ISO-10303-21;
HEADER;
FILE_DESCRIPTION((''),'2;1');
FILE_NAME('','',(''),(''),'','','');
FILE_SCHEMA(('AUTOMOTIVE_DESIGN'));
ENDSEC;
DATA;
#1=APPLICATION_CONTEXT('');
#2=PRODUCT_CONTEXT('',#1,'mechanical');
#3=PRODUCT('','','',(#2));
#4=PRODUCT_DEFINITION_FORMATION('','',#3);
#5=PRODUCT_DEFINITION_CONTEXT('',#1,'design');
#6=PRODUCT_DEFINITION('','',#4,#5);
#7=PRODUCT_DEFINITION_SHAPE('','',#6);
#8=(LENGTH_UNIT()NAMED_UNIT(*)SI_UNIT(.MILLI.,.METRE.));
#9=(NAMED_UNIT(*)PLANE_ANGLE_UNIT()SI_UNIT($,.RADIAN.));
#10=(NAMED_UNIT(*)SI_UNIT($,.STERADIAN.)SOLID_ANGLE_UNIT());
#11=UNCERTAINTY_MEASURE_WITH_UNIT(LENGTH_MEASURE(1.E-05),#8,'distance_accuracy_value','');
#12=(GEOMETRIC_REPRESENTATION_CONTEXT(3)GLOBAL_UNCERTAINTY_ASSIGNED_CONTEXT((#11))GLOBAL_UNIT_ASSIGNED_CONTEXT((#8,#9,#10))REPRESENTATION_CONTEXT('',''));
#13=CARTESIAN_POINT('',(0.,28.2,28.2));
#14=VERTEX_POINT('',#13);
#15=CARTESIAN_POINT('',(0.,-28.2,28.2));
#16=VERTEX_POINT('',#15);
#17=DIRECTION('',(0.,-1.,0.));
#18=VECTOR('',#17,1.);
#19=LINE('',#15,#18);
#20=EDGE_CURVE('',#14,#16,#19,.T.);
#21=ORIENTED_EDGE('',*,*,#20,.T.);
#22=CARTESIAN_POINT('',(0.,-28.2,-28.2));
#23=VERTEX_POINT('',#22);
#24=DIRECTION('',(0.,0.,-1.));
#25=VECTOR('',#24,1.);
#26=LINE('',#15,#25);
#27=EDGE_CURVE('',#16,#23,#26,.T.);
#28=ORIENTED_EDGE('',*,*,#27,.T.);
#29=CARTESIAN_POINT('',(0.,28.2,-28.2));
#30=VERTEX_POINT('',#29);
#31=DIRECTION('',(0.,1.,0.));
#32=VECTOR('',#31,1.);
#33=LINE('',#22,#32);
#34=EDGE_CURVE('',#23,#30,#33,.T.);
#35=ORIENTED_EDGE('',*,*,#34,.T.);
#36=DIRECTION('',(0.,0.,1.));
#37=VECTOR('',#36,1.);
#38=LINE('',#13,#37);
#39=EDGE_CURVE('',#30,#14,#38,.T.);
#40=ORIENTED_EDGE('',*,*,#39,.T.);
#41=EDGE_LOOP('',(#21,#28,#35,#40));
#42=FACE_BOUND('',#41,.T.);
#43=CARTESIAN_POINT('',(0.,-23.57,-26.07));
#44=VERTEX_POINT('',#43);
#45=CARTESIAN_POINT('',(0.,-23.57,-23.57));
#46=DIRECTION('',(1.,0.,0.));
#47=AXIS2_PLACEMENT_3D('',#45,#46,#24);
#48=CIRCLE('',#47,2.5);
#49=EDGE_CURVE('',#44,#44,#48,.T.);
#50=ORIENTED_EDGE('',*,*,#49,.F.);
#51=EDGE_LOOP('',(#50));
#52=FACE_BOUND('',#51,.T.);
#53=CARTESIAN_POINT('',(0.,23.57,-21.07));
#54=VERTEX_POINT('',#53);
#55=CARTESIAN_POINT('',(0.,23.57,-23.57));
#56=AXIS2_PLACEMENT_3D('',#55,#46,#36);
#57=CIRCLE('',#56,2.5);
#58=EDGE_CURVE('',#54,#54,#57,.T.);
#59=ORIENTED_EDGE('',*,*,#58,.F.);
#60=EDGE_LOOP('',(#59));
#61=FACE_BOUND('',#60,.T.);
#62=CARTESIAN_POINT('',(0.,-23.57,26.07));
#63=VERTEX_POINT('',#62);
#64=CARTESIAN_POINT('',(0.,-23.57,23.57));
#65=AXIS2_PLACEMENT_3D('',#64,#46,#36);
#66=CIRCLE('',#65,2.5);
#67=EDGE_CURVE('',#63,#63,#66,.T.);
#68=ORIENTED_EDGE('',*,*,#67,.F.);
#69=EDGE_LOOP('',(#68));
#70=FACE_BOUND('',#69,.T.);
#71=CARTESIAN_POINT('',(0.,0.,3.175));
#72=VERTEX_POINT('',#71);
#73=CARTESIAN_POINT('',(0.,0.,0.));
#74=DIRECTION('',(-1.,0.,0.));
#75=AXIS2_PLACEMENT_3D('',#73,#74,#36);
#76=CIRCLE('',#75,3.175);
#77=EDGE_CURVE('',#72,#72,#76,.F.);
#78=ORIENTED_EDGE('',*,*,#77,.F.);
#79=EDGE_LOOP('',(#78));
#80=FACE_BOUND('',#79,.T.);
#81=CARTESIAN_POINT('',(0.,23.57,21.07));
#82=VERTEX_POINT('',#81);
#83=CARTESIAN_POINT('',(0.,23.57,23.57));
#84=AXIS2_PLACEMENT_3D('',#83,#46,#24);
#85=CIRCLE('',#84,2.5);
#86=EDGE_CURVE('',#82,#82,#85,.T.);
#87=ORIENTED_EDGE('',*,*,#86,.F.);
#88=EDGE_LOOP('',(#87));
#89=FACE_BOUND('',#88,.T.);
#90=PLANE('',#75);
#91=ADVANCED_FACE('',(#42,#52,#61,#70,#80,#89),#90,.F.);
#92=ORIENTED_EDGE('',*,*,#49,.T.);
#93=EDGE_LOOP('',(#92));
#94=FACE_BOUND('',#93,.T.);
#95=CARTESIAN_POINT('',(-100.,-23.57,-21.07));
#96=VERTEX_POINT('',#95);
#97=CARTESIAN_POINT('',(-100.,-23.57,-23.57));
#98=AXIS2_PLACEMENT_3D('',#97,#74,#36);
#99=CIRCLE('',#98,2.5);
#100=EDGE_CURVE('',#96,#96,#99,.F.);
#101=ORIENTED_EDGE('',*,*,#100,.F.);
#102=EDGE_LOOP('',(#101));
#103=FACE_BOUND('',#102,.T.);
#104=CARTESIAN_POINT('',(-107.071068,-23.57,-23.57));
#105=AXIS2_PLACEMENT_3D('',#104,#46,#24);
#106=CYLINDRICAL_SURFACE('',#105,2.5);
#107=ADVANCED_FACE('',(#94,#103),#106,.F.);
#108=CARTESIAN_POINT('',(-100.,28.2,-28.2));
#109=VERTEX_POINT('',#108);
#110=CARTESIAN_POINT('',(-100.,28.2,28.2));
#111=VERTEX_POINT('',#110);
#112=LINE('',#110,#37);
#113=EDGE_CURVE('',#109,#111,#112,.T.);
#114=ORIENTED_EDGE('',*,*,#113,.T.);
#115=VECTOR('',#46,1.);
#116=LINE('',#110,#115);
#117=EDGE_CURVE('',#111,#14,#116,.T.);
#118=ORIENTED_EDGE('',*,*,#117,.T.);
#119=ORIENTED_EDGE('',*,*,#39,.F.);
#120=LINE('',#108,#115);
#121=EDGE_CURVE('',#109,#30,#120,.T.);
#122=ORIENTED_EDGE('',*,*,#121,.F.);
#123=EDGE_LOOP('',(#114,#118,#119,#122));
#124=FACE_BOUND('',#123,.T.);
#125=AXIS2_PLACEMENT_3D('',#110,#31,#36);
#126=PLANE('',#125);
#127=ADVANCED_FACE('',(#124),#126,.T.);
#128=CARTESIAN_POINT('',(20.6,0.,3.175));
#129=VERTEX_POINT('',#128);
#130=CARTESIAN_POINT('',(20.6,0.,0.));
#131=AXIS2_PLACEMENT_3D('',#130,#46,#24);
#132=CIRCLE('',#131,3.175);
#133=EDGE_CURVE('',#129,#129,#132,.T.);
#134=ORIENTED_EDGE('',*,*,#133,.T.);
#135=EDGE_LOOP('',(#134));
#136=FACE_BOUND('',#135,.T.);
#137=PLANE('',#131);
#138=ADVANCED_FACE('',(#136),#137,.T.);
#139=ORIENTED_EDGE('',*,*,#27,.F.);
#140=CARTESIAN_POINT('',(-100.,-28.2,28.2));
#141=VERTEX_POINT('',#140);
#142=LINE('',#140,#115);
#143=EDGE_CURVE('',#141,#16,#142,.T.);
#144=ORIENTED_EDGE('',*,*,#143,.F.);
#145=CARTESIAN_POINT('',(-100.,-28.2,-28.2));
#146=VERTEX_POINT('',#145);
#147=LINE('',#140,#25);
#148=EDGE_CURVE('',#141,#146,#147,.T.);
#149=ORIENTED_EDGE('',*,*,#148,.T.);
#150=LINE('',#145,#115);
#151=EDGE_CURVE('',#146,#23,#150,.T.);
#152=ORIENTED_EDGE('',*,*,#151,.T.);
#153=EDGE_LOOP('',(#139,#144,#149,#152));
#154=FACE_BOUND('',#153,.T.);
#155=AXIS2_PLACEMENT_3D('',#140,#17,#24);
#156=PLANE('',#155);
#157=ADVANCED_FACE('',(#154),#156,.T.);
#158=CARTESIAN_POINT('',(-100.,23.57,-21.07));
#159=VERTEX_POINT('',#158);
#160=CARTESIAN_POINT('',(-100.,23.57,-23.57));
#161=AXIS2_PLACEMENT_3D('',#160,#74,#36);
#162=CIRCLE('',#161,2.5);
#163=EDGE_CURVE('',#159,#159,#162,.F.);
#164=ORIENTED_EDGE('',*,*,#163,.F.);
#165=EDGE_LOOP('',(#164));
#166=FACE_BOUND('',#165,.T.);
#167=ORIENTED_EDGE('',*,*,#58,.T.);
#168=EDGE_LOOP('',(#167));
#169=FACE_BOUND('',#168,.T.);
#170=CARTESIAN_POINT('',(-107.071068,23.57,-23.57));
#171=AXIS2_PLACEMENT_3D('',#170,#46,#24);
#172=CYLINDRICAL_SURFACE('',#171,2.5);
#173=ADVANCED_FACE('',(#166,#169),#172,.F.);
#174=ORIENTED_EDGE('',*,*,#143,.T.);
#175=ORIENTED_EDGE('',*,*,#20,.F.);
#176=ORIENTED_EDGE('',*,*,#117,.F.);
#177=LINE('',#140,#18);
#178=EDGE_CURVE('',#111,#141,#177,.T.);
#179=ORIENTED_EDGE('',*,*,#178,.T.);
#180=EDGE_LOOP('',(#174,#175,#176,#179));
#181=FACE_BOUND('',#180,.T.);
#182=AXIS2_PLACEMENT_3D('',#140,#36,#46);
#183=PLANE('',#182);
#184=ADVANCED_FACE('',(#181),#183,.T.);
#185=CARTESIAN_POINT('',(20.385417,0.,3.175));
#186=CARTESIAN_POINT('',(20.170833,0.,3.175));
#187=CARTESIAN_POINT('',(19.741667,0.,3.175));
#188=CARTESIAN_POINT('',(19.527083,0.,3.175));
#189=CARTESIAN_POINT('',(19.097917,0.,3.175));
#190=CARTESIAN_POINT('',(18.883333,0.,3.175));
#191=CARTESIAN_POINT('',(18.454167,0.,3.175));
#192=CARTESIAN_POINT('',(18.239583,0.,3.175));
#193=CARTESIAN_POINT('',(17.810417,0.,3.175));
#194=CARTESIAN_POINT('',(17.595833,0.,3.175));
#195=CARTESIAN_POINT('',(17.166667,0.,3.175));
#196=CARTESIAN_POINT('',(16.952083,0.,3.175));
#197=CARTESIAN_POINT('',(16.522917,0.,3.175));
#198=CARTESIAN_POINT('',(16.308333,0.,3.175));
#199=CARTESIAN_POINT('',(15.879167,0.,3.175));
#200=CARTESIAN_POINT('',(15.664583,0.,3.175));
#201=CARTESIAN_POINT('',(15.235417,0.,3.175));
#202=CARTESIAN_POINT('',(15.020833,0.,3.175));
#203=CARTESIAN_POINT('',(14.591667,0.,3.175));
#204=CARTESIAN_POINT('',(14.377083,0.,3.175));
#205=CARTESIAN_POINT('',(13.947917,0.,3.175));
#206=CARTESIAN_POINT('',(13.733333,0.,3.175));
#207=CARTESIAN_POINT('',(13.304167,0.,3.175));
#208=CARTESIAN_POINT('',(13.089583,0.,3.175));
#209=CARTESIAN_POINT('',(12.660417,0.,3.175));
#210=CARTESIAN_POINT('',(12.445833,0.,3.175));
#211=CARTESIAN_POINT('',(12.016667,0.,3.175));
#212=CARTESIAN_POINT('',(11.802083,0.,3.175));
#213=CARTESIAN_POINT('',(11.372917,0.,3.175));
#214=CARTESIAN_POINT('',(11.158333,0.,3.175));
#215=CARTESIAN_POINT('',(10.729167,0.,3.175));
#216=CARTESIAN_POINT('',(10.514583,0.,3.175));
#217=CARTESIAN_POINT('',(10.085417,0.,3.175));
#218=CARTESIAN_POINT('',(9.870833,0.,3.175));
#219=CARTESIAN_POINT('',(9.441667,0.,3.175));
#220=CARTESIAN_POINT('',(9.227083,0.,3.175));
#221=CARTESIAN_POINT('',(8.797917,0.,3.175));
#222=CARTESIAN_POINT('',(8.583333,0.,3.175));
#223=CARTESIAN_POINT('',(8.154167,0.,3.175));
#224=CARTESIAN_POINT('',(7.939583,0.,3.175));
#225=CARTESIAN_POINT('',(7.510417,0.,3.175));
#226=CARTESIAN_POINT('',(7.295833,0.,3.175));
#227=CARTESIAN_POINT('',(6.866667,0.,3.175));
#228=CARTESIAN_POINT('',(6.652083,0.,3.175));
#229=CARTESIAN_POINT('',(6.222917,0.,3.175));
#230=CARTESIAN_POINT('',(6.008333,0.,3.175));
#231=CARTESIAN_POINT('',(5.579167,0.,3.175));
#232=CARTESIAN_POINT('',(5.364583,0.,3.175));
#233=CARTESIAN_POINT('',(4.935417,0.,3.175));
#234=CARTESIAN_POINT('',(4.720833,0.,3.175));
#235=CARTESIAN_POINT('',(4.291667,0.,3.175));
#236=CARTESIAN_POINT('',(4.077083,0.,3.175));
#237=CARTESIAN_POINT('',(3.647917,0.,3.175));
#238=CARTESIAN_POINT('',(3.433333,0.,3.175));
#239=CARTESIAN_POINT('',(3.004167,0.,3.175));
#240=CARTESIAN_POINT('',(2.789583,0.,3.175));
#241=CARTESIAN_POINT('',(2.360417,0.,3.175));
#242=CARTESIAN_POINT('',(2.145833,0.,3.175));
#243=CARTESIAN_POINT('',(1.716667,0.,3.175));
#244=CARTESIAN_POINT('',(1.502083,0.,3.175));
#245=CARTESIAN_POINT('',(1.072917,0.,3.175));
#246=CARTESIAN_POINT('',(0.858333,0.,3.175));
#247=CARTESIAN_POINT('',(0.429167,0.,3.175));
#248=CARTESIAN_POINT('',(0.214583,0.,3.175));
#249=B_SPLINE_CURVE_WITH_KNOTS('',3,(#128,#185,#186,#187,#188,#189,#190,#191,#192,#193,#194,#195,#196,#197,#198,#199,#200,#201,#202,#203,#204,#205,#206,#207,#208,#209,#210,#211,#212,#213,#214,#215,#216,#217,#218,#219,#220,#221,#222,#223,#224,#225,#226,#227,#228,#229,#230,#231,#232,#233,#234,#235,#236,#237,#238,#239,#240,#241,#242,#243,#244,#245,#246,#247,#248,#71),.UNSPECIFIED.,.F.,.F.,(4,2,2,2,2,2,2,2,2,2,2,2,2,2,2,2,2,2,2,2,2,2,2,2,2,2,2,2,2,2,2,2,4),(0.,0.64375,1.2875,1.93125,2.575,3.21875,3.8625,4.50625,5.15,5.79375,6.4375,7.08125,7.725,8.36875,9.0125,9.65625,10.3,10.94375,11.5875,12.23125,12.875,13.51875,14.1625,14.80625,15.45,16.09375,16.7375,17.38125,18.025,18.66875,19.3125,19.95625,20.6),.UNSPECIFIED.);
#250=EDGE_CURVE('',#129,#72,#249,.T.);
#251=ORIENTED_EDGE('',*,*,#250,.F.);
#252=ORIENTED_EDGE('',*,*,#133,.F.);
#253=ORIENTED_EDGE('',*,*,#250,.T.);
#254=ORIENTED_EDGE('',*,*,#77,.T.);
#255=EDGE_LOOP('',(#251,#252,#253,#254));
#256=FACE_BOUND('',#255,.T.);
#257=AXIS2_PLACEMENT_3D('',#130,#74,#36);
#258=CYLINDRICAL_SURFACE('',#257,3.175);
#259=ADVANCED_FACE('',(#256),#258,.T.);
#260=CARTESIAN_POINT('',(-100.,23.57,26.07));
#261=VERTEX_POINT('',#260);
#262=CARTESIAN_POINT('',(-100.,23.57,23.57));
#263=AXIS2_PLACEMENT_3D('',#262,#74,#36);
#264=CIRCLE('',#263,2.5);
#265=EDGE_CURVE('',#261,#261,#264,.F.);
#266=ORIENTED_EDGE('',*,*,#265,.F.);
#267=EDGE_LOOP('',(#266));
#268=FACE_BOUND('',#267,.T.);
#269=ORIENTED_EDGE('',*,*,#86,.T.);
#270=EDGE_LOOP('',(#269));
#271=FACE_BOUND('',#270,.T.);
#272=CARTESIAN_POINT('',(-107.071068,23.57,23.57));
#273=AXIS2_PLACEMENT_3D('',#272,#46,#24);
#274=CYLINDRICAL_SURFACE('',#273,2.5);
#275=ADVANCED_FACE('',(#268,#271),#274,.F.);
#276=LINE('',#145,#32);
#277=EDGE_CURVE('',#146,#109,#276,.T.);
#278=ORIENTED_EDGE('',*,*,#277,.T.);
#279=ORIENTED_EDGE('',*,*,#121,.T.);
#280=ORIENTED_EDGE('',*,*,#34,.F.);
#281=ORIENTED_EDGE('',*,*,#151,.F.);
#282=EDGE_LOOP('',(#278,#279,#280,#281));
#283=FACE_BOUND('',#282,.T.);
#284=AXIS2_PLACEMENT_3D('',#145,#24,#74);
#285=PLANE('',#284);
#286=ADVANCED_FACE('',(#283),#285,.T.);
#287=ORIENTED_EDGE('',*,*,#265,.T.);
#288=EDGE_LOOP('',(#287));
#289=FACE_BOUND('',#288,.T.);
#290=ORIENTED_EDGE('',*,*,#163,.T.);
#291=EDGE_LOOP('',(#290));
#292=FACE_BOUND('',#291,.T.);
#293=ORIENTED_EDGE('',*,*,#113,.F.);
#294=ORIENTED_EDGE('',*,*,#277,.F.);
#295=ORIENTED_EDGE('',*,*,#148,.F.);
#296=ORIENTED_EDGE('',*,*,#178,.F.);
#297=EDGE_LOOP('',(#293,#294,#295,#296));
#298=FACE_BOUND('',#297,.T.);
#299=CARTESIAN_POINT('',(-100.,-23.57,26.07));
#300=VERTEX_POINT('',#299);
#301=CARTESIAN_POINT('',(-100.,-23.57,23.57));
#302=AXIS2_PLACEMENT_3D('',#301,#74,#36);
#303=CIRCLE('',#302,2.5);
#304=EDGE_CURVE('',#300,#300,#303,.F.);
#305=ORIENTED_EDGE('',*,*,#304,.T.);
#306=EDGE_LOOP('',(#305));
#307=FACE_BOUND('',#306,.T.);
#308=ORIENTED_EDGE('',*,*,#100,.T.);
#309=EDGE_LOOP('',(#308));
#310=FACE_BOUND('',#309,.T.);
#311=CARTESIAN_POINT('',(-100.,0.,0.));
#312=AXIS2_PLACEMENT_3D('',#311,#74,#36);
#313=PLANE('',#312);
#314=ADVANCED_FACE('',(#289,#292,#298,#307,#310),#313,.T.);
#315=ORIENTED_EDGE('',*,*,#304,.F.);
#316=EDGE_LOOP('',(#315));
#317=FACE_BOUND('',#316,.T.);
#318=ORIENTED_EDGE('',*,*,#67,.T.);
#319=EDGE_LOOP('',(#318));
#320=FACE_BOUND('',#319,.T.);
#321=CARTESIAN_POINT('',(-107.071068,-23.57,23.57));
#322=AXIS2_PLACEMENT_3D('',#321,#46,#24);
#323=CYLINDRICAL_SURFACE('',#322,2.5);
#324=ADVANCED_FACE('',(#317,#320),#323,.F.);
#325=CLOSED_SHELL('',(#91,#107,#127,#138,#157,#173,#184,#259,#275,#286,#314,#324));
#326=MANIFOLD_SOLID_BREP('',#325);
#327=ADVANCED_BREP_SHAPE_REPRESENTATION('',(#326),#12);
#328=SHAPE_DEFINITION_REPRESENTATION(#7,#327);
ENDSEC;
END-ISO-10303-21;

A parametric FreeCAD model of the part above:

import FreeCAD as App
import Part
import Sketcher

V = App.Vector


def add_polygon(sketch, points):
    """Adds a closed chain of lines whose ends are joined by coincident constraints."""
    first, n = sketch.GeometryCount, len(points)
    for a, b in zip(points, points[1:] + points[:1]):
        sketch.addGeometry(Part.LineSegment(App.Vector(*a, 0), App.Vector(*b, 0)), False)
    for i in range(n):
        sketch.addConstraint(Sketcher.Constraint("Coincident", first + i, 2, first + (i + 1) % n, 1))

doc = App.newDocument("Part")
body = doc.addObject("PartDesign::Body", "Body")

# Sketch on YZ plane
sketch1 = body.newObject("Sketcher::SketchObject", "Sketch")
sketch1.AttachmentSupport = (doc.getObject("YZ_Plane"), [""])
sketch1.MapMode = "FlatFace"
add_polygon(sketch1, [(28, 28), (-28, 28), (-28, -28), (28, -28)])  # lines 0-3
sketch1.addConstraint([
    Sketcher.Constraint("Horizontal", 0),
    Sketcher.Constraint("Vertical", 1),
    Sketcher.Constraint("Horizontal", 2),
    Sketcher.Constraint("Vertical", 3),
    Sketcher.Constraint("Symmetric", 0, 2, 2, 2, -1, 1),
    Sketcher.Constraint("Equal", 2, 1),
    Sketcher.Constraint("DistanceX", 0, 2, 0, 1, 56.4),
])
pad1 = body.newObject("PartDesign::Pad", "Pad")
pad1.Profile = sketch1
pad1.Length = 100
pad1.Reversed = True

# Sketch on YZ plane
sketch2 = body.newObject("Sketcher::SketchObject", "Sketch001")
sketch2.AttachmentSupport = (doc.getObject("YZ_Plane"), [""])
sketch2.MapMode = "FlatFace"
sketch2.addGeometry([
    Part.Circle(V(23.6, 23.6, 0), V(0, 0, 1), 2.5),
    Part.Circle(V(23.6, -23.6, 0), V(0, 0, 1), 2.5),
    Part.Circle(V(-23.6, -23.6, 0), V(0, 0, 1), 2.5),
    Part.Circle(V(-23.6, 23.6, 0), V(0, 0, 1), 2.5),
], False)
sketch2.addConstraint([
    Sketcher.Constraint("Equal", 0, 1),
    Sketcher.Constraint("Equal", 1, 2),
    Sketcher.Constraint("Equal", 2, 3),
    Sketcher.Constraint("Symmetric", 0, 3, 2, 3, -1, 1),
    Sketcher.Constraint("Symmetric", 1, 3, 3, 3, -1, 1),
    Sketcher.Constraint("Symmetric", 1, 3, 2, 3, -2),
    Sketcher.Constraint("Diameter", 0, 5.0),
    Sketcher.Constraint("DistanceX", -1, 1, 0, 3, 23.57),
    Sketcher.Constraint("DistanceY", -1, 1, 0, 3, 23.57),
])
pocket1 = body.newObject("PartDesign::Pocket", "Pocket")
pocket1.Profile = sketch2
pocket1.Length = 100

# Sketch on YZ plane
sketch3 = body.newObject("Sketcher::SketchObject", "Sketch002")
sketch3.AttachmentSupport = (doc.getObject("YZ_Plane"), [""])
sketch3.MapMode = "FlatFace"
sketch3.addGeometry(Part.Circle(V(0, 0, 0), V(0, 0, 1), 3.2), False)
sketch3.addConstraint([
    Sketcher.Constraint("Coincident", 0, 3, -1, 1),
    Sketcher.Constraint("Diameter", 0, 6.35),
])
pad2 = body.newObject("PartDesign::Pad", "Pad001")
pad2.Profile = sketch3
pad2.Length = 20.6

doc.recompute()
